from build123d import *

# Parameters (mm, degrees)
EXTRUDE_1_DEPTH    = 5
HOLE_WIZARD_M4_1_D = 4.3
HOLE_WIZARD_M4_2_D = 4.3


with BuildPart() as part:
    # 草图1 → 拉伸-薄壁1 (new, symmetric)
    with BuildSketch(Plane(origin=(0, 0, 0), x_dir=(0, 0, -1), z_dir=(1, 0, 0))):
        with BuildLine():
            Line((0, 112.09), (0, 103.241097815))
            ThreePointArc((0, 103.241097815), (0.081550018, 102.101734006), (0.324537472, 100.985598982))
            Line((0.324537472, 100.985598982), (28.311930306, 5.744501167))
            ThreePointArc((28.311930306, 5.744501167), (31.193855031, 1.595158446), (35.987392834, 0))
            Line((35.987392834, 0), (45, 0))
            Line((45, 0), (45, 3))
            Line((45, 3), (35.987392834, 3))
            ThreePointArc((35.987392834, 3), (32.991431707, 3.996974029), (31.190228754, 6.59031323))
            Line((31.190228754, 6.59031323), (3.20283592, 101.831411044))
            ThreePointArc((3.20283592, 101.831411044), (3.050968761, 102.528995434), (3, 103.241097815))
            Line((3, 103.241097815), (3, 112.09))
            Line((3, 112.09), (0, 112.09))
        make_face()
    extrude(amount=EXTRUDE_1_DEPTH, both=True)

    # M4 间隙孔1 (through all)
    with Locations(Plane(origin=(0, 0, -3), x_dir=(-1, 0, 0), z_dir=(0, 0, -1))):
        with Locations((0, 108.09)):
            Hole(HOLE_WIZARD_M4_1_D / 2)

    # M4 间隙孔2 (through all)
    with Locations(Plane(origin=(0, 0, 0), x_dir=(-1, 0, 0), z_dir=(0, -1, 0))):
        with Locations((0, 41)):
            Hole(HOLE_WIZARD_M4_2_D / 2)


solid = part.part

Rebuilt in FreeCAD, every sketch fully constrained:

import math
import FreeCAD as App
import Part
import Sketcher

V = App.Vector
Q = App.Units.Quantity

doc = App.newDocument("Part")
body = doc.addObject("PartDesign::Body", "Body")

sketch1 = doc.addObject("Sketcher::SketchObject", "Sketch")
body.addObject(sketch1)
sketch1.AttachmentSupport = (doc.YZ_Plane, [""])
sketch1.MapMode = "FlatFace"
sketch1.addGeometry(Part.LineSegment(V(112.1, 0, 0), V(103.2, 0, 0)), False)
sketch1.addGeometry(Part.ArcOfCircle(Part.Circle(V(103.2, -8, 0), V(0, 0, 1), 8), math.radians(90), math.radians(106.38)), False)
sketch1.addGeometry(Part.LineSegment(V(101, -0.3, 0), V(5.7, -28.3, 0)), False)
sketch1.addGeometry(Part.ArcOfCircle(Part.Circle(V(8, -36, 0), V(0, 0, 1), 8), math.radians(106), math.radians(180)), False)
sketch1.addGeometry(Part.LineSegment(V(0, -36, 0), V(0, -45, 0)), False)
sketch1.addGeometry(Part.LineSegment(V(0, -45, 0), V(3, -45, 0)), False)
sketch1.addGeometry(Part.LineSegment(V(3, -45, 0), V(3, -36, 0)), False)
sketch1.addGeometry(Part.ArcOfCircle(Part.Circle(V(8, -36, 0), V(0, 0, 1), 5), math.radians(106), math.radians(180)), False)
sketch1.addGeometry(Part.LineSegment(V(6.6, -31.2, 0), V(101.8, -3.2, 0)), False)
sketch1.addGeometry(Part.ArcOfCircle(Part.Circle(V(103.2, -8, 0), V(0, 0, 1), 5), math.radians(90), math.radians(106.38)), False)
sketch1.addGeometry(Part.LineSegment(V(103.2, -3, 0), V(112.1, -3, 0)), False)
sketch1.addGeometry(Part.LineSegment(V(112.1, -3, 0), V(112.1, 0, 0)), False)
sketch1.addConstraint(Sketcher.Constraint("Tangent", 0, 2, 1, 1))
sketch1.addConstraint(Sketcher.Constraint("Tangent", 1, 2, 2, 1))
sketch1.addConstraint(Sketcher.Constraint("Tangent", 2, 2, 3, 1))
sketch1.addConstraint(Sketcher.Constraint("Tangent", 3, 2, 4, 1))
sketch1.addConstraint(Sketcher.Constraint("Coincident", 4, 2, 5, 1))
sketch1.addConstraint(Sketcher.Constraint("Coincident", 5, 2, 6, 1))
sketch1.addConstraint(Sketcher.Constraint("Tangent", 6, 2, 7, 2))
sketch1.addConstraint(Sketcher.Constraint("Tangent", 7, 1, 8, 1))
sketch1.addConstraint(Sketcher.Constraint("Tangent", 8, 2, 9, 2))
sketch1.addConstraint(Sketcher.Constraint("Tangent", 9, 1, 10, 1))
sketch1.addConstraint(Sketcher.Constraint("Coincident", 10, 2, 11, 1))
sketch1.addConstraint(Sketcher.Constraint("Coincident", 11, 2, 0, 1))
sketch1.addConstraint(Sketcher.Constraint("Horizontal", 0))
sketch1.addConstraint(Sketcher.Constraint("Vertical", 4))
sketch1.addConstraint(Sketcher.Constraint("Horizontal", 5))
sketch1.addConstraint(Sketcher.Constraint("Vertical", 6))
sketch1.addConstraint(Sketcher.Constraint("Horizontal", 10))
sketch1.addConstraint(Sketcher.Constraint("Vertical", 11))
sketch1.addConstraint(Sketcher.Constraint("Coincident", 7, 3, 3, 3))
sketch1.addConstraint(Sketcher.Constraint("Coincident", 9, 3, 1, 3))
sketch1.addConstraint(Sketcher.Constraint("Equal", 1, 3))
sketch1.addConstraint(Sketcher.Constraint("Equal", 7, 9))
sketch1.addConstraint(Sketcher.Constraint("PointOnObject", 0, 2, -1))
sketch1.addConstraint(Sketcher.Constraint("PointOnObject", 3, 2, -2))
sketch1.addConstraint(Sketcher.Constraint("Radius", 1, Q("8 mm")))
sketch1.addConstraint(Sketcher.Constraint("Radius", 7, Q("5 mm")))
sketch1.addConstraint(Sketcher.Constraint("DistanceY", 4, 2, -1, 1, Q("45 mm")))
sketch1.addConstraint(Sketcher.Constraint("DistanceX", -1, 1, 10, 2, Q("112.09 mm")))
sketch1.addConstraint(Sketcher.Constraint("DistanceX", -1, 1, 1, 2, Q("100.985599 mm")))
sketch1.addConstraint(Sketcher.Constraint("DistanceX", -1, 1, 2, 2, Q("5.744501 mm")))
pad1 = doc.addObject("PartDesign::Pad", "Pad")
body.addObject(pad1)
pad1.Profile = sketch1
pad1.Length = 10
pad1.Midplane = True

sketch2 = doc.addObject("Sketcher::SketchObject", "Sketch001")
body.addObject(sketch2)
sketch2.AttachmentSupport = (doc.XY_Plane, [""])
sketch2.MapMode = "FlatFace"
sketch2.AttachmentOffset = App.Placement(V(0, 0, -3), App.Rotation())
sketch2.addGeometry(Part.Circle(V(0, 108.1, 0), V(0, 0, 1), 2.1), False)
sketch2.addConstraint(Sketcher.Constraint("PointOnObject", 0, 3, -2))
sketch2.addConstraint(Sketcher.Constraint("Diameter", 0, Q("4.3 mm")))
sketch2.addConstraint(Sketcher.Constraint("DistanceY", -1, 1, 0, 3, Q("108.09 mm")))
doc.recompute()
hole = doc.addObject("PartDesign::Hole", "Hole")
body.addObject(hole)
hole.Profile = sketch2
hole.ThreadType = "None"
hole.Diameter = 4.3
hole.DepthType = "ThroughAll"
hole.Reversed = True

sketch3 = doc.addObject("Sketcher::SketchObject", "Sketch002")
body.addObject(sketch3)
sketch3.AttachmentSupport = (doc.XZ_Plane, [""])
sketch3.MapMode = "FlatFace"
sketch3.addGeometry(Part.Circle(V(0, -41, 0), V(0, 0, 1), 2.1), False)
sketch3.addConstraint(Sketcher.Constraint("PointOnObject", 0, 3, -2))
sketch3.addConstraint(Sketcher.Constraint("Diameter", 0, Q("4.3 mm")))
sketch3.addConstraint(Sketcher.Constraint("DistanceY", 0, 3, -1, 1, Q("41 mm")))
doc.recompute()
hole2 = doc.addObject("PartDesign::Hole", "Hole001")
body.addObject(hole2)
hole2.Profile = sketch3
hole2.ThreadType = "None"
hole2.Diameter = 4.3
hole2.DepthType = "ThroughAll"

doc.recompute()
